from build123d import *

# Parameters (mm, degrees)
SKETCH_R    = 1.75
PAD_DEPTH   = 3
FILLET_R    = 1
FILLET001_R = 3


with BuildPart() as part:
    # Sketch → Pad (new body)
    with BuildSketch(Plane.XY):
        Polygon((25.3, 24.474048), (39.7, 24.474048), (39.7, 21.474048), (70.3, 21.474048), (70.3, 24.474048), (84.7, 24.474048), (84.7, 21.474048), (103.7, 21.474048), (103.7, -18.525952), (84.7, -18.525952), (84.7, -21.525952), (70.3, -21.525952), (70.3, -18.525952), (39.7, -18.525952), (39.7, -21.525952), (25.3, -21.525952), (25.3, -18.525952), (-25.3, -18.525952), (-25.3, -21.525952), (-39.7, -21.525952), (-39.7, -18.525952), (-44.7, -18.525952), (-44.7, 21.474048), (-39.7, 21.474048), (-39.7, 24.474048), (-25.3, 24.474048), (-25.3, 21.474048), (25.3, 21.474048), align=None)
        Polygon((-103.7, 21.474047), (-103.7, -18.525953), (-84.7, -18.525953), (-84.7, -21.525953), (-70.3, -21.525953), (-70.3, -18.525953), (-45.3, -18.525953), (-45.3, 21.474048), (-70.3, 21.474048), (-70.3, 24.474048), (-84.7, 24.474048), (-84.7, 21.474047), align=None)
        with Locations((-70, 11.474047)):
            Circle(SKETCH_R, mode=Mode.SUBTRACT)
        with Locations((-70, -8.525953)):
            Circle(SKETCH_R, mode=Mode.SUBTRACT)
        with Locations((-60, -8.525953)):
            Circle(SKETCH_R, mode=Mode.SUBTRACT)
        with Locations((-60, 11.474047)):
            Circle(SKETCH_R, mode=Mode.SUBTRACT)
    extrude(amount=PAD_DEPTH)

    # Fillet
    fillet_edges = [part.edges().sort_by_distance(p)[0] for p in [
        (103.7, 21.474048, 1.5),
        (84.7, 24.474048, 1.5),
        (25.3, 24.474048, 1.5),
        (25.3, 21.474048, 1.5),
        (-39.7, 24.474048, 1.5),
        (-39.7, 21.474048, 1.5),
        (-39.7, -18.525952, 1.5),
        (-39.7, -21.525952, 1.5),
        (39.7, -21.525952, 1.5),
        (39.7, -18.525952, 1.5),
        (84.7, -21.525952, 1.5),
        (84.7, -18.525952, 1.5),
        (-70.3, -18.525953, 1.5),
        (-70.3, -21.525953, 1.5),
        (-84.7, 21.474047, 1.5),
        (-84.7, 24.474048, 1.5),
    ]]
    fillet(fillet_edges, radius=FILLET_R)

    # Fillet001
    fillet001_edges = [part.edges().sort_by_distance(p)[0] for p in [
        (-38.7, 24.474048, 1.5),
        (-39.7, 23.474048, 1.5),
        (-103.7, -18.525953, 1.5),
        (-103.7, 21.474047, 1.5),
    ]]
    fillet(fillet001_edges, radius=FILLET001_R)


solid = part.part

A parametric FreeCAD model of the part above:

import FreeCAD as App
import Part
import Sketcher


def edges_at(feature, points):
    """Names of the edges that pass closest to the given points."""
    edges = feature.Shape.Edges
    near = lambda p: min(range(len(edges)), key=lambda i: edges[i].distToShape(Part.Vertex(*p))[0])
    return sorted({f"Edge{near(p) + 1}" for p in points})

doc = App.newDocument("Part")
params = doc.addObject("Spreadsheet::Sheet", "Params")
for row, (alias, value) in enumerate([
    ("sketch1_diameter", "3.5 mm"),
    ("sketch1_width", "5 mm"),
    ("sketch1_width2", "19 mm"),
    ("sketch1_width3", "25 mm"),
    ("sketch1_height", "3 mm"),
    ("pad1_length", "3 mm"),
    ("fillet_radius", "1 mm"),
    ("fillet2_radius", "3 mm"),
], start=1):
    params.set(f"A{row}", alias)
    params.set(f"B{row}", "=" + value)
    params.setAlias(f"B{row}", alias)

body = doc.addObject("PartDesign::Body", "Body")
body.AllowCompound = True

# Sketch on XY plane
sketch1 = body.newObject("Sketcher::SketchObject", "Sketch")
sketch1.AttachmentSupport = (doc.getObject("XY_Plane"), [""])
sketch1.MapMode = "FlatFace"
sketch1.addGeometry([
    Part.LineSegment(App.Vector(39.7, 24.5, 0), App.Vector(25.3, 24.5, 0)),  # 0
    Part.LineSegment(App.Vector(25.3, 24.5, 0), App.Vector(25.3, 21.5, 0)),  # 1
    Part.LineSegment(App.Vector(25.3, 21.5, 0), App.Vector(-25.3, 21.5, 0)),  # 2
    Part.LineSegment(App.Vector(-25.3, 21.5, 0), App.Vector(-25.3, 24.5, 0)),  # 3
    Part.LineSegment(App.Vector(-25.3, 24.5, 0), App.Vector(-39.7, 24.5, 0)),  # 4
    Part.LineSegment(App.Vector(-39.7, 24.5, 0), App.Vector(-39.7, 21.5, 0)),  # 5
    Part.LineSegment(App.Vector(-39.7, 21.5, 0), App.Vector(-44.7, 21.5, 0)),  # 6
    Part.LineSegment(App.Vector(-44.7, 21.5, 0), App.Vector(-44.7, -18.5, 0)),  # 7
    Part.LineSegment(App.Vector(-44.7, -18.5, 0), App.Vector(-39.7, -18.5, 0)),  # 8
    Part.LineSegment(App.Vector(-39.7, -18.5, 0), App.Vector(-39.7, -21.5, 0)),  # 9
    Part.LineSegment(App.Vector(-39.7, -21.5, 0), App.Vector(-25.3, -21.5, 0)),  # 10
    Part.LineSegment(App.Vector(-25.3, -21.5, 0), App.Vector(-25.3, -18.5, 0)),  # 11
    Part.LineSegment(App.Vector(-25.3, -18.5, 0), App.Vector(25.3, -18.5, 0)),  # 12
    Part.LineSegment(App.Vector(25.3, -18.5, 0), App.Vector(25.3, -21.5, 0)),  # 13
    Part.LineSegment(App.Vector(25.3, -21.5, 0), App.Vector(39.7, -21.5, 0)),  # 14
    Part.LineSegment(App.Vector(39.7, -21.5, 0), App.Vector(39.7, -18.5, 0)),  # 15
    Part.LineSegment(App.Vector(39.7, -18.5, 0), App.Vector(70.3, -18.5, 0)),  # 16
    Part.LineSegment(App.Vector(70.3, -18.5, 0), App.Vector(70.3, -21.5, 0)),  # 17
    Part.LineSegment(App.Vector(70.3, -21.5, 0), App.Vector(84.7, -21.5, 0)),  # 18
    Part.LineSegment(App.Vector(84.7, -21.5, 0), App.Vector(84.7, -18.5, 0)),  # 19
    Part.LineSegment(App.Vector(84.7, -18.5, 0), App.Vector(103.7, -18.5, 0)),  # 20
    Part.LineSegment(App.Vector(103.7, -18.5, 0), App.Vector(103.7, 21.5, 0)),  # 21
    Part.LineSegment(App.Vector(103.7, 21.5, 0), App.Vector(84.7, 21.5, 0)),  # 22
    Part.LineSegment(App.Vector(84.7, 21.5, 0), App.Vector(84.7, 24.5, 0)),  # 23
    Part.LineSegment(App.Vector(84.7, 24.5, 0), App.Vector(70.3, 24.5, 0)),  # 24
    Part.LineSegment(App.Vector(70.3, 24.5, 0), App.Vector(70.3, 21.5, 0)),  # 25
    Part.LineSegment(App.Vector(70.3, 21.5, 0), App.Vector(39.7, 21.5, 0)),  # 26
    Part.LineSegment(App.Vector(39.7, 21.5, 0), App.Vector(39.7, 24.5, 0)),  # 27
    Part.LineSegment(App.Vector(-103.7, 21.5, 0), App.Vector(-103.7, -18.5, 0)),  # 28
    Part.LineSegment(App.Vector(-103.7, -18.5, 0), App.Vector(-84.7, -18.5, 0)),  # 29
    Part.LineSegment(App.Vector(-84.7, -18.5, 0), App.Vector(-84.7, -21.5, 0)),  # 30
    Part.LineSegment(App.Vector(-84.7, -21.5, 0), App.Vector(-70.3, -21.5, 0)),  # 31
    Part.LineSegment(App.Vector(-70.3, -21.5, 0), App.Vector(-70.3, -18.5, 0)),  # 32
    Part.LineSegment(App.Vector(-70.3, -18.5, 0), App.Vector(-45.3, -18.5, 0)),  # 33
    Part.LineSegment(App.Vector(-45.3, -18.5, 0), App.Vector(-45.3, 21.5, 0)),  # 34
    Part.LineSegment(App.Vector(-45.3, 21.5, 0), App.Vector(-70.3, 21.5, 0)),  # 35
    Part.LineSegment(App.Vector(-70.3, 21.5, 0), App.Vector(-70.3, 24.5, 0)),  # 36
    Part.LineSegment(App.Vector(-70.3, 24.5, 0), App.Vector(-84.7, 24.5, 0)),  # 37
    Part.LineSegment(App.Vector(-84.7, 24.5, 0), App.Vector(-84.7, 21.5, 0)),  # 38
    Part.LineSegment(App.Vector(-84.7, 21.5, 0), App.Vector(-103.7, 21.5, 0)),  # 39
    Part.Circle(App.Vector(-70, -8.5, 0), App.Vector(0, 0, 1), 1.8),  # 40
    Part.Circle(App.Vector(-60, -8.5, 0), App.Vector(0, 0, 1), 1.8),  # 41
    Part.Circle(App.Vector(-70, 11.5, 0), App.Vector(0, 0, 1), 1.8),  # 42
    Part.Circle(App.Vector(-60, 11.5, 0), App.Vector(0, 0, 1), 1.8),  # 43
], False)
sketch1.addConstraint([
    Sketcher.Constraint("Coincident", 0, 2, 1, 1),
    Sketcher.Constraint("Coincident", 1, 2, 2, 1),
    Sketcher.Constraint("Coincident", 2, 2, 3, 1),
    Sketcher.Constraint("Coincident", 3, 2, 4, 1),
    Sketcher.Constraint("Coincident", 4, 2, 5, 1),
    Sketcher.Constraint("Coincident", 5, 2, 6, 1),
    Sketcher.Constraint("Coincident", 6, 2, 7, 1),
    Sketcher.Constraint("Coincident", 7, 2, 8, 1),
    Sketcher.Constraint("Coincident", 8, 2, 9, 1),
    Sketcher.Constraint("Coincident", 9, 2, 10, 1),
    Sketcher.Constraint("Coincident", 10, 2, 11, 1),
    Sketcher.Constraint("Coincident", 11, 2, 12, 1),
    Sketcher.Constraint("Coincident", 12, 2, 13, 1),
    Sketcher.Constraint("Coincident", 13, 2, 14, 1),
    Sketcher.Constraint("Coincident", 14, 2, 15, 1),
    Sketcher.Constraint("Coincident", 15, 2, 16, 1),
    Sketcher.Constraint("Coincident", 16, 2, 17, 1),
    Sketcher.Constraint("Coincident", 17, 2, 18, 1),
    Sketcher.Constraint("Coincident", 18, 2, 19, 1),
    Sketcher.Constraint("Coincident", 19, 2, 20, 1),
    Sketcher.Constraint("Coincident", 20, 2, 21, 1),
    Sketcher.Constraint("Coincident", 21, 2, 22, 1),
    Sketcher.Constraint("Coincident", 22, 2, 23, 1),
    Sketcher.Constraint("Coincident", 23, 2, 24, 1),
    Sketcher.Constraint("Coincident", 24, 2, 25, 1),
    Sketcher.Constraint("Coincident", 25, 2, 26, 1),
    Sketcher.Constraint("Coincident", 26, 2, 27, 1),
    Sketcher.Constraint("Coincident", 27, 2, 0, 1),
    Sketcher.Constraint("Coincident", 28, 2, 29, 1),
    Sketcher.Constraint("Coincident", 29, 2, 30, 1),
    Sketcher.Constraint("Coincident", 30, 2, 31, 1),
    Sketcher.Constraint("Coincident", 31, 2, 32, 1),
    Sketcher.Constraint("Coincident", 32, 2, 33, 1),
    Sketcher.Constraint("Coincident", 33, 2, 34, 1),
    Sketcher.Constraint("Coincident", 34, 2, 35, 1),
    Sketcher.Constraint("Coincident", 35, 2, 36, 1),
    Sketcher.Constraint("Coincident", 36, 2, 37, 1),
    Sketcher.Constraint("Coincident", 37, 2, 38, 1),
    Sketcher.Constraint("Coincident", 38, 2, 39, 1),
    Sketcher.Constraint("Coincident", 39, 2, 28, 1),
    Sketcher.Constraint("Horizontal", 0),
    Sketcher.Constraint("Vertical", 1),
    Sketcher.Constraint("Horizontal", 2),
    Sketcher.Constraint("Vertical", 3),
    Sketcher.Constraint("Horizontal", 4),
    Sketcher.Constraint("Vertical", 5),
    Sketcher.Constraint("Horizontal", 6),
    Sketcher.Constraint("Vertical", 7),
    Sketcher.Constraint("Horizontal", 8),
    Sketcher.Constraint("Vertical", 9),
    Sketcher.Constraint("Horizontal", 10),
    Sketcher.Constraint("Vertical", 11),
    Sketcher.Constraint("Horizontal", 12),
    Sketcher.Constraint("Vertical", 13),
    Sketcher.Constraint("Horizontal", 14),
    Sketcher.Constraint("Vertical", 15),
    Sketcher.Constraint("Horizontal", 16),
    Sketcher.Constraint("Vertical", 17),
    Sketcher.Constraint("Horizontal", 18),
    Sketcher.Constraint("Vertical", 19),
    Sketcher.Constraint("Horizontal", 20),
    Sketcher.Constraint("Vertical", 21),
    Sketcher.Constraint("Horizontal", 22),
    Sketcher.Constraint("Vertical", 23),
    Sketcher.Constraint("Horizontal", 24),
    Sketcher.Constraint("Vertical", 25),
    Sketcher.Constraint("Horizontal", 26),
    Sketcher.Constraint("Vertical", 27),
    Sketcher.Constraint("Vertical", 28),
    Sketcher.Constraint("Horizontal", 29),
    Sketcher.Constraint("Vertical", 30),
    Sketcher.Constraint("Horizontal", 31),
    Sketcher.Constraint("Vertical", 32),
    Sketcher.Constraint("Horizontal", 33),
    Sketcher.Constraint("Vertical", 34),
    Sketcher.Constraint("Horizontal", 35),
    Sketcher.Constraint("Vertical", 36),
    Sketcher.Constraint("Horizontal", 37),
    Sketcher.Constraint("Vertical", 38),
    Sketcher.Constraint("Horizontal", 39),
    Sketcher.Constraint("Equal", 40, 41),
    Sketcher.Constraint("Equal", 41, 42),
    Sketcher.Constraint("Equal", 42, 43),
    Sketcher.Constraint("Symmetric", 0, 2, 3, 2, -2),
    Sketcher.Constraint("Symmetric", 10, 2, 13, 2, -2),
    Sketcher.Constraint("Symmetric", 8, 2, 15, 2, -2),
    Sketcher.Constraint("Symmetric", 5, 2, 26, 2, -2),
    Sketcher.Constraint("Symmetric", 20, 2, 28, 2, -2),
    Sketcher.Constraint("Symmetric", 18, 2, 30, 2, -2),
    Sketcher.Constraint("Symmetric", 16, 2, 32, 2, -2),
    Sketcher.Constraint("Symmetric", 25, 2, 35, 2, -2),
    Sketcher.Constraint("Symmetric", 23, 2, 37, 2, -2),
    Sketcher.Constraint("Horizontal", 40, 3, 41, 3),
    Sketcher.Constraint("Horizontal", 42, 3, 43, 3),
    Sketcher.Constraint("Horizontal", 2, 2, 5, 2),
    Sketcher.Constraint("Horizontal", 8, 2, 11, 2),
    Sketcher.Constraint("Horizontal", 14, 2, 17, 2),
    Sketcher.Constraint("Horizontal", 16, 2, 19, 2),
    Sketcher.Constraint("Horizontal", 6, 2, 21, 2),
    Sketcher.Constraint("Horizontal", 4, 2, 23, 2),
    Sketcher.Constraint("Horizontal", 35, 2, 38, 2),
    Sketcher.Constraint("Vertical", 40, 3, 42, 3),
    Sketcher.Constraint("Vertical", 41, 3, 43, 3),
    Sketcher.Constraint("Vertical", 5, 2, 8, 2),
    Sketcher.Constraint("Vertical", 3, 2, 10, 2),
    Sketcher.Constraint("Vertical", 19, 2, 22, 2),
    Sketcher.Constraint("Vertical", 17, 2, 24, 2),
    Sketcher.Constraint("Equal", 14, 18),
    Sketcher.Constraint("Equal", 5, 9),
    Sketcher.Constraint("Diameter", 40, 3.5),
    Sketcher.Constraint("DistanceX", 6, 2, 6, 1, 5.0),
    Sketcher.Constraint("DistanceX", 20, 1, 20, 2, 19.0),
    Sketcher.Constraint("DistanceX", 33, 1, 33, 2, 25.0),
    Sketcher.Constraint("DistanceY", 1, 2, 1, 1, 3.0),
    Sketcher.Constraint("DistanceY", 7, 2, 7, 1, 40.0),
    Sketcher.Constraint("DistanceX", 0, 2, 0, 1, 14.4),
    Sketcher.Constraint("DistanceX", 2, 2, 2, 1, 50.6),
    Sketcher.Constraint("DistanceX", 16, 1, 16, 2, 30.6),
    Sketcher.Constraint("DistanceX", 40, 3, -1, 1, 70.0),
    Sketcher.Constraint("DistanceX", 41, 3, -1, 1, 60.0),
    Sketcher.Constraint("DistanceY", 40, 3, 42, 3, 20.0),
    Sketcher.Constraint("DistanceY", 43, 3, 0, 2, 13.000001),
    Sketcher.Constraint("DistanceY", -1, 1, 0, 2, 24.474048),
])
sketch1.setExpression("Constraints[109]", "Params.sketch1_diameter")
sketch1.setExpression("Constraints[110]", "Params.sketch1_width")
sketch1.setExpression("Constraints[111]", "Params.sketch1_width2")
sketch1.setExpression("Constraints[112]", "Params.sketch1_width3")
sketch1.setExpression("Constraints[113]", "Params.sketch1_height")
pad1 = body.newObject("PartDesign::Pad", "Pad")
pad1.Profile = sketch1
pad1.setExpression("Length", "Params.pad1_length")
doc.recompute()

fillet = body.newObject("PartDesign::Fillet", "Fillet")
fillet.Base = (pad1, edges_at(pad1, [
    (103.7, 21.474, 1.5),
    (84.7, 24.474, 1.5),
    (25.3, 24.474, 1.5),
    (25.3, 21.474, 1.5),
    (-39.7, 24.474, 1.5),
    (-39.7, 21.474, 1.5),
    (-39.7, -18.526, 1.5),
    (-39.7, -21.526, 1.5),
    (39.7, -21.526, 1.5),
    (39.7, -18.526, 1.5),
    (84.7, -21.526, 1.5),
    (84.7, -18.526, 1.5),
    (-70.3, -18.526, 1.5),
    (-70.3, -21.526, 1.5),
    (-84.7, 21.474, 1.5),
    (-84.7, 24.474, 1.5),
]))
fillet.setExpression("Radius", "Params.fillet_radius")
doc.recompute()

fillet2 = body.newObject("PartDesign::Fillet", "Fillet001")
fillet2.Base = (fillet, edges_at(fillet, [
    (-38.7, 24.474, 1.5),
    (-39.7, 23.474, 1.5),
    (-103.7, -18.526, 1.5),
    (-103.7, 21.474, 1.5),
]))
fillet2.setExpression("Radius", "Params.fillet2_radius")

doc.recompute()
